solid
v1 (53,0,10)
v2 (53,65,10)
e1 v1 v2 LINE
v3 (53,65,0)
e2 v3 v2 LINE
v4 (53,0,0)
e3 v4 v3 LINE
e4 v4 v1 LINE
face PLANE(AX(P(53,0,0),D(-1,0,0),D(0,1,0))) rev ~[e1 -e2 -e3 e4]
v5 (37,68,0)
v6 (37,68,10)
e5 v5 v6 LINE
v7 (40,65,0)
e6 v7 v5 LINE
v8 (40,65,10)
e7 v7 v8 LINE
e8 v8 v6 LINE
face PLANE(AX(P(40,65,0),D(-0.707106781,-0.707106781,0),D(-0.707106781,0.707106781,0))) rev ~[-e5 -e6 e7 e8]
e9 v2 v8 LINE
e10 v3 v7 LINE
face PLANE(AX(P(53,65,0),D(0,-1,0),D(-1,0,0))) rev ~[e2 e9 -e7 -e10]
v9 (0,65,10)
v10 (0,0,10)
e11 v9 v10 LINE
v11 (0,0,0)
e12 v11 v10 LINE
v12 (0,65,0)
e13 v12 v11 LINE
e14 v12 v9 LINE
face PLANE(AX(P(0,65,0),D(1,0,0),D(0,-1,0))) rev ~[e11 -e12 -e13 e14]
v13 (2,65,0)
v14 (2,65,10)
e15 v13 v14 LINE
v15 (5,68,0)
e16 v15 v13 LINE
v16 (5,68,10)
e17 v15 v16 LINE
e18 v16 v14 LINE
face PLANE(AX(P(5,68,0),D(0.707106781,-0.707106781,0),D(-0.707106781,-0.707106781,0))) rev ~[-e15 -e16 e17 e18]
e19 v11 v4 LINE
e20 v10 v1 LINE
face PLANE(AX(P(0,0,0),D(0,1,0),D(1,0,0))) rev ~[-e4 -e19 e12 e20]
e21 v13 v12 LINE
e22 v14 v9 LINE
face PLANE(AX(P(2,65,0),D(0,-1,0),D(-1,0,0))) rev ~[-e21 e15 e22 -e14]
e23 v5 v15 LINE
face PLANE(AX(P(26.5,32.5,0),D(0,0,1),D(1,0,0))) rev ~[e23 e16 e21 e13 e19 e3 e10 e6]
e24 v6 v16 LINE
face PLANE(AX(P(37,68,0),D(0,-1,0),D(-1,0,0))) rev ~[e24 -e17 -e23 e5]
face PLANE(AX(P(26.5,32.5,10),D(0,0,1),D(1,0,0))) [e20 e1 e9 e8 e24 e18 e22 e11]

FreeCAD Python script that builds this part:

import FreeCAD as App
import Part
import Sketcher


def add_polygon(sketch, points):
    """Adds a closed chain of lines whose ends are joined by coincident constraints."""
    first, n = sketch.GeometryCount, len(points)
    for a, b in zip(points, points[1:] + points[:1]):
        sketch.addGeometry(Part.LineSegment(App.Vector(*a, 0), App.Vector(*b, 0)), False)
    for i in range(n):
        sketch.addConstraint(Sketcher.Constraint("Coincident", first + i, 2, first + (i + 1) % n, 1))

doc = App.newDocument("Part")
body = doc.addObject("PartDesign::Body", "Body")

sketch1 = body.newObject("Sketcher::SketchObject", "Sketch")
sketch1.AttachmentSupport = (doc.getObject("XY_Plane"), [""])
sketch1.MapMode = "FlatFace"
add_polygon(sketch1, [(0, 65), (0, 0), (53, 0), (53, 65), (40, 65), (37, 68), (5, 68), (2, 65)])
sketch1.addConstraint(Sketcher.Constraint("Vertical", 0))
sketch1.addConstraint(Sketcher.Constraint("Horizontal", 1))
sketch1.addConstraint(Sketcher.Constraint("Vertical", 2))
sketch1.addConstraint(Sketcher.Constraint("Horizontal", 3))
sketch1.addConstraint(Sketcher.Constraint("Horizontal", 5))
sketch1.addConstraint(Sketcher.Constraint("Horizontal", 7))
sketch1.addConstraint(Sketcher.Constraint("Coincident", 0, 2, -1, 1))
sketch1.addConstraint(Sketcher.Constraint("Perpendicular", 4, 6))
sketch1.addConstraint(Sketcher.Constraint("Horizontal", 3, 2, 6, 2))
sketch1.addConstraint(Sketcher.Constraint("Equal", 4, 6))
sketch1.addConstraint(Sketcher.Constraint("DistanceX", 1, 1, 1, 2, 53.0))
sketch1.addConstraint(Sketcher.Constraint("DistanceX", 3, 2, 3, 1, 13.0))
sketch1.addConstraint(Sketcher.Constraint("DistanceX", 5, 2, 5, 1, 32.0))
sketch1.addConstraint(Sketcher.Constraint("DistanceX", 7, 2, 7, 1, 2.0))
sketch1.addConstraint(Sketcher.Constraint("DistanceY", 0, 2, 0, 1, 65.0))
pad1 = body.newObject("PartDesign::Pad", "Pad")
pad1.Profile = sketch1
pad1.Length = 10

doc.recompute()
